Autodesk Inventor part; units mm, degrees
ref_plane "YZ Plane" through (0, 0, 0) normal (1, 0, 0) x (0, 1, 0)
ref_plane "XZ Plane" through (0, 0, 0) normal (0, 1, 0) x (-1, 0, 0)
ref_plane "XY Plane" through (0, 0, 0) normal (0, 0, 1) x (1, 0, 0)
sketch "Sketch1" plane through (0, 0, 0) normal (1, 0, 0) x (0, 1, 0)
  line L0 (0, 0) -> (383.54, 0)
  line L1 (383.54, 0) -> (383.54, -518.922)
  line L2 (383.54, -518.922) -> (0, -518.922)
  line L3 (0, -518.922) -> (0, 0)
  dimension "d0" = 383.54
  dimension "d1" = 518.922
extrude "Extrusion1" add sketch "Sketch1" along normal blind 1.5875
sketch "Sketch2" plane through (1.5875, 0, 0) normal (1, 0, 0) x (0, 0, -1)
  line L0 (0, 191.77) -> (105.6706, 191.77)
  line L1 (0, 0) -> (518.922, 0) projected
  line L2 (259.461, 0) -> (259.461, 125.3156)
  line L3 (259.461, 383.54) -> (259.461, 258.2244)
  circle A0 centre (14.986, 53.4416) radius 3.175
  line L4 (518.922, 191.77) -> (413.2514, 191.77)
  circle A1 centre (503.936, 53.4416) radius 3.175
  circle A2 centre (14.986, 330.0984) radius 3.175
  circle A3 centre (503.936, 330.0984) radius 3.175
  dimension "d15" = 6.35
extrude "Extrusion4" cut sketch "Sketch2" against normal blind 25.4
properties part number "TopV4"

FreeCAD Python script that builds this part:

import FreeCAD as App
import Part
import Sketcher
from FreeCAD import Vector
Q = App.Units.Quantity


def add_polygon(sketch, points):
    """Adds a closed chain of lines whose ends are joined by coincident constraints."""
    first, n = sketch.GeometryCount, len(points)
    for a, b in zip(points, points[1:] + points[:1]):
        sketch.addGeometry(Part.LineSegment(App.Vector(*a, 0), App.Vector(*b, 0)), False)
    for i in range(n):
        sketch.addConstraint(Sketcher.Constraint("Coincident", first + i, 2, first + (i + 1) % n, 1))

doc = App.newDocument("Part")
body = doc.addObject("PartDesign::Body", "Body")

# Sketch on YZ plane
sketch1 = doc.addObject("Sketcher::SketchObject", "Sketch")
body.addObject(sketch1)
sketch1.AttachmentSupport = (doc.YZ_Plane, [""])
sketch1.MapMode = "FlatFace"
add_polygon(sketch1, [(384, 0), (0, 0), (0, -519), (384, -519)])  # lines 0-3
sketch1.addConstraint([
    Sketcher.Constraint("Horizontal", 0),
    Sketcher.Constraint("Vertical", 1),
    Sketcher.Constraint("Horizontal", 2),
    Sketcher.Constraint("Vertical", 3),
    Sketcher.Constraint("Coincident", 0, 2, -1, 1),
    Sketcher.Constraint("DistanceX", 0, 2, 0, 1, Q("15.1 in")),
    Sketcher.Constraint("DistanceY", 1, 2, 1, 1, Q("20.43 in")),
])
pad1 = doc.addObject("PartDesign::Pad", "Pad")
body.addObject(pad1)
pad1.Profile = sketch1
pad1.Length = Q("0.0625 in")

# Sketch on YZ plane
sketch2 = doc.addObject("Sketcher::SketchObject", "Sketch001")
body.addObject(sketch2)
sketch2.AttachmentSupport = (doc.YZ_Plane, [""])
sketch2.MapMode = "FlatFace"
sketch2.AttachmentOffset = App.Placement(Vector(0, 0, 0.0625 * 25.4), App.Rotation())
sketch2.addGeometry([
    Part.Circle(Vector(53.4, -15, 0), Vector(0, 0, 1), 3.2),
    Part.Circle(Vector(53.4, -503.9, 0), Vector(0, 0, 1), 3.2),
    Part.Circle(Vector(330.1, -15, 0), Vector(0, 0, 1), 3.2),
    Part.Circle(Vector(330.1, -503.9, 0), Vector(0, 0, 1), 3.2),
], False)
sketch2.addConstraint([
    Sketcher.Constraint("Equal", 0, 1),
    Sketcher.Constraint("Equal", 1, 2),
    Sketcher.Constraint("Equal", 2, 3),
    Sketcher.Constraint("Horizontal", 0, 3, 2, 3),
    Sketcher.Constraint("Horizontal", 1, 3, 3, 3),
    Sketcher.Constraint("Vertical", 0, 3, 1, 3),
    Sketcher.Constraint("Vertical", 2, 3, 3, 3),
    Sketcher.Constraint("Diameter", 0, Q("0.25 in")),
    Sketcher.Constraint("DistanceY", 0, 3, -1, 1, Q("0.59 in")),
    Sketcher.Constraint("DistanceY", 1, 3, -1, 1, Q("19.84 in")),
    Sketcher.Constraint("DistanceX", -1, 1, 0, 3, Q("2.104 in")),
    Sketcher.Constraint("DistanceX", -1, 1, 2, 3, Q("12.996 in")),
])
pocket1 = doc.addObject("PartDesign::Pocket", "Pocket")
body.addObject(pocket1)
pocket1.Profile = sketch2
pocket1.Length = Q("1 in")

doc.recompute()
